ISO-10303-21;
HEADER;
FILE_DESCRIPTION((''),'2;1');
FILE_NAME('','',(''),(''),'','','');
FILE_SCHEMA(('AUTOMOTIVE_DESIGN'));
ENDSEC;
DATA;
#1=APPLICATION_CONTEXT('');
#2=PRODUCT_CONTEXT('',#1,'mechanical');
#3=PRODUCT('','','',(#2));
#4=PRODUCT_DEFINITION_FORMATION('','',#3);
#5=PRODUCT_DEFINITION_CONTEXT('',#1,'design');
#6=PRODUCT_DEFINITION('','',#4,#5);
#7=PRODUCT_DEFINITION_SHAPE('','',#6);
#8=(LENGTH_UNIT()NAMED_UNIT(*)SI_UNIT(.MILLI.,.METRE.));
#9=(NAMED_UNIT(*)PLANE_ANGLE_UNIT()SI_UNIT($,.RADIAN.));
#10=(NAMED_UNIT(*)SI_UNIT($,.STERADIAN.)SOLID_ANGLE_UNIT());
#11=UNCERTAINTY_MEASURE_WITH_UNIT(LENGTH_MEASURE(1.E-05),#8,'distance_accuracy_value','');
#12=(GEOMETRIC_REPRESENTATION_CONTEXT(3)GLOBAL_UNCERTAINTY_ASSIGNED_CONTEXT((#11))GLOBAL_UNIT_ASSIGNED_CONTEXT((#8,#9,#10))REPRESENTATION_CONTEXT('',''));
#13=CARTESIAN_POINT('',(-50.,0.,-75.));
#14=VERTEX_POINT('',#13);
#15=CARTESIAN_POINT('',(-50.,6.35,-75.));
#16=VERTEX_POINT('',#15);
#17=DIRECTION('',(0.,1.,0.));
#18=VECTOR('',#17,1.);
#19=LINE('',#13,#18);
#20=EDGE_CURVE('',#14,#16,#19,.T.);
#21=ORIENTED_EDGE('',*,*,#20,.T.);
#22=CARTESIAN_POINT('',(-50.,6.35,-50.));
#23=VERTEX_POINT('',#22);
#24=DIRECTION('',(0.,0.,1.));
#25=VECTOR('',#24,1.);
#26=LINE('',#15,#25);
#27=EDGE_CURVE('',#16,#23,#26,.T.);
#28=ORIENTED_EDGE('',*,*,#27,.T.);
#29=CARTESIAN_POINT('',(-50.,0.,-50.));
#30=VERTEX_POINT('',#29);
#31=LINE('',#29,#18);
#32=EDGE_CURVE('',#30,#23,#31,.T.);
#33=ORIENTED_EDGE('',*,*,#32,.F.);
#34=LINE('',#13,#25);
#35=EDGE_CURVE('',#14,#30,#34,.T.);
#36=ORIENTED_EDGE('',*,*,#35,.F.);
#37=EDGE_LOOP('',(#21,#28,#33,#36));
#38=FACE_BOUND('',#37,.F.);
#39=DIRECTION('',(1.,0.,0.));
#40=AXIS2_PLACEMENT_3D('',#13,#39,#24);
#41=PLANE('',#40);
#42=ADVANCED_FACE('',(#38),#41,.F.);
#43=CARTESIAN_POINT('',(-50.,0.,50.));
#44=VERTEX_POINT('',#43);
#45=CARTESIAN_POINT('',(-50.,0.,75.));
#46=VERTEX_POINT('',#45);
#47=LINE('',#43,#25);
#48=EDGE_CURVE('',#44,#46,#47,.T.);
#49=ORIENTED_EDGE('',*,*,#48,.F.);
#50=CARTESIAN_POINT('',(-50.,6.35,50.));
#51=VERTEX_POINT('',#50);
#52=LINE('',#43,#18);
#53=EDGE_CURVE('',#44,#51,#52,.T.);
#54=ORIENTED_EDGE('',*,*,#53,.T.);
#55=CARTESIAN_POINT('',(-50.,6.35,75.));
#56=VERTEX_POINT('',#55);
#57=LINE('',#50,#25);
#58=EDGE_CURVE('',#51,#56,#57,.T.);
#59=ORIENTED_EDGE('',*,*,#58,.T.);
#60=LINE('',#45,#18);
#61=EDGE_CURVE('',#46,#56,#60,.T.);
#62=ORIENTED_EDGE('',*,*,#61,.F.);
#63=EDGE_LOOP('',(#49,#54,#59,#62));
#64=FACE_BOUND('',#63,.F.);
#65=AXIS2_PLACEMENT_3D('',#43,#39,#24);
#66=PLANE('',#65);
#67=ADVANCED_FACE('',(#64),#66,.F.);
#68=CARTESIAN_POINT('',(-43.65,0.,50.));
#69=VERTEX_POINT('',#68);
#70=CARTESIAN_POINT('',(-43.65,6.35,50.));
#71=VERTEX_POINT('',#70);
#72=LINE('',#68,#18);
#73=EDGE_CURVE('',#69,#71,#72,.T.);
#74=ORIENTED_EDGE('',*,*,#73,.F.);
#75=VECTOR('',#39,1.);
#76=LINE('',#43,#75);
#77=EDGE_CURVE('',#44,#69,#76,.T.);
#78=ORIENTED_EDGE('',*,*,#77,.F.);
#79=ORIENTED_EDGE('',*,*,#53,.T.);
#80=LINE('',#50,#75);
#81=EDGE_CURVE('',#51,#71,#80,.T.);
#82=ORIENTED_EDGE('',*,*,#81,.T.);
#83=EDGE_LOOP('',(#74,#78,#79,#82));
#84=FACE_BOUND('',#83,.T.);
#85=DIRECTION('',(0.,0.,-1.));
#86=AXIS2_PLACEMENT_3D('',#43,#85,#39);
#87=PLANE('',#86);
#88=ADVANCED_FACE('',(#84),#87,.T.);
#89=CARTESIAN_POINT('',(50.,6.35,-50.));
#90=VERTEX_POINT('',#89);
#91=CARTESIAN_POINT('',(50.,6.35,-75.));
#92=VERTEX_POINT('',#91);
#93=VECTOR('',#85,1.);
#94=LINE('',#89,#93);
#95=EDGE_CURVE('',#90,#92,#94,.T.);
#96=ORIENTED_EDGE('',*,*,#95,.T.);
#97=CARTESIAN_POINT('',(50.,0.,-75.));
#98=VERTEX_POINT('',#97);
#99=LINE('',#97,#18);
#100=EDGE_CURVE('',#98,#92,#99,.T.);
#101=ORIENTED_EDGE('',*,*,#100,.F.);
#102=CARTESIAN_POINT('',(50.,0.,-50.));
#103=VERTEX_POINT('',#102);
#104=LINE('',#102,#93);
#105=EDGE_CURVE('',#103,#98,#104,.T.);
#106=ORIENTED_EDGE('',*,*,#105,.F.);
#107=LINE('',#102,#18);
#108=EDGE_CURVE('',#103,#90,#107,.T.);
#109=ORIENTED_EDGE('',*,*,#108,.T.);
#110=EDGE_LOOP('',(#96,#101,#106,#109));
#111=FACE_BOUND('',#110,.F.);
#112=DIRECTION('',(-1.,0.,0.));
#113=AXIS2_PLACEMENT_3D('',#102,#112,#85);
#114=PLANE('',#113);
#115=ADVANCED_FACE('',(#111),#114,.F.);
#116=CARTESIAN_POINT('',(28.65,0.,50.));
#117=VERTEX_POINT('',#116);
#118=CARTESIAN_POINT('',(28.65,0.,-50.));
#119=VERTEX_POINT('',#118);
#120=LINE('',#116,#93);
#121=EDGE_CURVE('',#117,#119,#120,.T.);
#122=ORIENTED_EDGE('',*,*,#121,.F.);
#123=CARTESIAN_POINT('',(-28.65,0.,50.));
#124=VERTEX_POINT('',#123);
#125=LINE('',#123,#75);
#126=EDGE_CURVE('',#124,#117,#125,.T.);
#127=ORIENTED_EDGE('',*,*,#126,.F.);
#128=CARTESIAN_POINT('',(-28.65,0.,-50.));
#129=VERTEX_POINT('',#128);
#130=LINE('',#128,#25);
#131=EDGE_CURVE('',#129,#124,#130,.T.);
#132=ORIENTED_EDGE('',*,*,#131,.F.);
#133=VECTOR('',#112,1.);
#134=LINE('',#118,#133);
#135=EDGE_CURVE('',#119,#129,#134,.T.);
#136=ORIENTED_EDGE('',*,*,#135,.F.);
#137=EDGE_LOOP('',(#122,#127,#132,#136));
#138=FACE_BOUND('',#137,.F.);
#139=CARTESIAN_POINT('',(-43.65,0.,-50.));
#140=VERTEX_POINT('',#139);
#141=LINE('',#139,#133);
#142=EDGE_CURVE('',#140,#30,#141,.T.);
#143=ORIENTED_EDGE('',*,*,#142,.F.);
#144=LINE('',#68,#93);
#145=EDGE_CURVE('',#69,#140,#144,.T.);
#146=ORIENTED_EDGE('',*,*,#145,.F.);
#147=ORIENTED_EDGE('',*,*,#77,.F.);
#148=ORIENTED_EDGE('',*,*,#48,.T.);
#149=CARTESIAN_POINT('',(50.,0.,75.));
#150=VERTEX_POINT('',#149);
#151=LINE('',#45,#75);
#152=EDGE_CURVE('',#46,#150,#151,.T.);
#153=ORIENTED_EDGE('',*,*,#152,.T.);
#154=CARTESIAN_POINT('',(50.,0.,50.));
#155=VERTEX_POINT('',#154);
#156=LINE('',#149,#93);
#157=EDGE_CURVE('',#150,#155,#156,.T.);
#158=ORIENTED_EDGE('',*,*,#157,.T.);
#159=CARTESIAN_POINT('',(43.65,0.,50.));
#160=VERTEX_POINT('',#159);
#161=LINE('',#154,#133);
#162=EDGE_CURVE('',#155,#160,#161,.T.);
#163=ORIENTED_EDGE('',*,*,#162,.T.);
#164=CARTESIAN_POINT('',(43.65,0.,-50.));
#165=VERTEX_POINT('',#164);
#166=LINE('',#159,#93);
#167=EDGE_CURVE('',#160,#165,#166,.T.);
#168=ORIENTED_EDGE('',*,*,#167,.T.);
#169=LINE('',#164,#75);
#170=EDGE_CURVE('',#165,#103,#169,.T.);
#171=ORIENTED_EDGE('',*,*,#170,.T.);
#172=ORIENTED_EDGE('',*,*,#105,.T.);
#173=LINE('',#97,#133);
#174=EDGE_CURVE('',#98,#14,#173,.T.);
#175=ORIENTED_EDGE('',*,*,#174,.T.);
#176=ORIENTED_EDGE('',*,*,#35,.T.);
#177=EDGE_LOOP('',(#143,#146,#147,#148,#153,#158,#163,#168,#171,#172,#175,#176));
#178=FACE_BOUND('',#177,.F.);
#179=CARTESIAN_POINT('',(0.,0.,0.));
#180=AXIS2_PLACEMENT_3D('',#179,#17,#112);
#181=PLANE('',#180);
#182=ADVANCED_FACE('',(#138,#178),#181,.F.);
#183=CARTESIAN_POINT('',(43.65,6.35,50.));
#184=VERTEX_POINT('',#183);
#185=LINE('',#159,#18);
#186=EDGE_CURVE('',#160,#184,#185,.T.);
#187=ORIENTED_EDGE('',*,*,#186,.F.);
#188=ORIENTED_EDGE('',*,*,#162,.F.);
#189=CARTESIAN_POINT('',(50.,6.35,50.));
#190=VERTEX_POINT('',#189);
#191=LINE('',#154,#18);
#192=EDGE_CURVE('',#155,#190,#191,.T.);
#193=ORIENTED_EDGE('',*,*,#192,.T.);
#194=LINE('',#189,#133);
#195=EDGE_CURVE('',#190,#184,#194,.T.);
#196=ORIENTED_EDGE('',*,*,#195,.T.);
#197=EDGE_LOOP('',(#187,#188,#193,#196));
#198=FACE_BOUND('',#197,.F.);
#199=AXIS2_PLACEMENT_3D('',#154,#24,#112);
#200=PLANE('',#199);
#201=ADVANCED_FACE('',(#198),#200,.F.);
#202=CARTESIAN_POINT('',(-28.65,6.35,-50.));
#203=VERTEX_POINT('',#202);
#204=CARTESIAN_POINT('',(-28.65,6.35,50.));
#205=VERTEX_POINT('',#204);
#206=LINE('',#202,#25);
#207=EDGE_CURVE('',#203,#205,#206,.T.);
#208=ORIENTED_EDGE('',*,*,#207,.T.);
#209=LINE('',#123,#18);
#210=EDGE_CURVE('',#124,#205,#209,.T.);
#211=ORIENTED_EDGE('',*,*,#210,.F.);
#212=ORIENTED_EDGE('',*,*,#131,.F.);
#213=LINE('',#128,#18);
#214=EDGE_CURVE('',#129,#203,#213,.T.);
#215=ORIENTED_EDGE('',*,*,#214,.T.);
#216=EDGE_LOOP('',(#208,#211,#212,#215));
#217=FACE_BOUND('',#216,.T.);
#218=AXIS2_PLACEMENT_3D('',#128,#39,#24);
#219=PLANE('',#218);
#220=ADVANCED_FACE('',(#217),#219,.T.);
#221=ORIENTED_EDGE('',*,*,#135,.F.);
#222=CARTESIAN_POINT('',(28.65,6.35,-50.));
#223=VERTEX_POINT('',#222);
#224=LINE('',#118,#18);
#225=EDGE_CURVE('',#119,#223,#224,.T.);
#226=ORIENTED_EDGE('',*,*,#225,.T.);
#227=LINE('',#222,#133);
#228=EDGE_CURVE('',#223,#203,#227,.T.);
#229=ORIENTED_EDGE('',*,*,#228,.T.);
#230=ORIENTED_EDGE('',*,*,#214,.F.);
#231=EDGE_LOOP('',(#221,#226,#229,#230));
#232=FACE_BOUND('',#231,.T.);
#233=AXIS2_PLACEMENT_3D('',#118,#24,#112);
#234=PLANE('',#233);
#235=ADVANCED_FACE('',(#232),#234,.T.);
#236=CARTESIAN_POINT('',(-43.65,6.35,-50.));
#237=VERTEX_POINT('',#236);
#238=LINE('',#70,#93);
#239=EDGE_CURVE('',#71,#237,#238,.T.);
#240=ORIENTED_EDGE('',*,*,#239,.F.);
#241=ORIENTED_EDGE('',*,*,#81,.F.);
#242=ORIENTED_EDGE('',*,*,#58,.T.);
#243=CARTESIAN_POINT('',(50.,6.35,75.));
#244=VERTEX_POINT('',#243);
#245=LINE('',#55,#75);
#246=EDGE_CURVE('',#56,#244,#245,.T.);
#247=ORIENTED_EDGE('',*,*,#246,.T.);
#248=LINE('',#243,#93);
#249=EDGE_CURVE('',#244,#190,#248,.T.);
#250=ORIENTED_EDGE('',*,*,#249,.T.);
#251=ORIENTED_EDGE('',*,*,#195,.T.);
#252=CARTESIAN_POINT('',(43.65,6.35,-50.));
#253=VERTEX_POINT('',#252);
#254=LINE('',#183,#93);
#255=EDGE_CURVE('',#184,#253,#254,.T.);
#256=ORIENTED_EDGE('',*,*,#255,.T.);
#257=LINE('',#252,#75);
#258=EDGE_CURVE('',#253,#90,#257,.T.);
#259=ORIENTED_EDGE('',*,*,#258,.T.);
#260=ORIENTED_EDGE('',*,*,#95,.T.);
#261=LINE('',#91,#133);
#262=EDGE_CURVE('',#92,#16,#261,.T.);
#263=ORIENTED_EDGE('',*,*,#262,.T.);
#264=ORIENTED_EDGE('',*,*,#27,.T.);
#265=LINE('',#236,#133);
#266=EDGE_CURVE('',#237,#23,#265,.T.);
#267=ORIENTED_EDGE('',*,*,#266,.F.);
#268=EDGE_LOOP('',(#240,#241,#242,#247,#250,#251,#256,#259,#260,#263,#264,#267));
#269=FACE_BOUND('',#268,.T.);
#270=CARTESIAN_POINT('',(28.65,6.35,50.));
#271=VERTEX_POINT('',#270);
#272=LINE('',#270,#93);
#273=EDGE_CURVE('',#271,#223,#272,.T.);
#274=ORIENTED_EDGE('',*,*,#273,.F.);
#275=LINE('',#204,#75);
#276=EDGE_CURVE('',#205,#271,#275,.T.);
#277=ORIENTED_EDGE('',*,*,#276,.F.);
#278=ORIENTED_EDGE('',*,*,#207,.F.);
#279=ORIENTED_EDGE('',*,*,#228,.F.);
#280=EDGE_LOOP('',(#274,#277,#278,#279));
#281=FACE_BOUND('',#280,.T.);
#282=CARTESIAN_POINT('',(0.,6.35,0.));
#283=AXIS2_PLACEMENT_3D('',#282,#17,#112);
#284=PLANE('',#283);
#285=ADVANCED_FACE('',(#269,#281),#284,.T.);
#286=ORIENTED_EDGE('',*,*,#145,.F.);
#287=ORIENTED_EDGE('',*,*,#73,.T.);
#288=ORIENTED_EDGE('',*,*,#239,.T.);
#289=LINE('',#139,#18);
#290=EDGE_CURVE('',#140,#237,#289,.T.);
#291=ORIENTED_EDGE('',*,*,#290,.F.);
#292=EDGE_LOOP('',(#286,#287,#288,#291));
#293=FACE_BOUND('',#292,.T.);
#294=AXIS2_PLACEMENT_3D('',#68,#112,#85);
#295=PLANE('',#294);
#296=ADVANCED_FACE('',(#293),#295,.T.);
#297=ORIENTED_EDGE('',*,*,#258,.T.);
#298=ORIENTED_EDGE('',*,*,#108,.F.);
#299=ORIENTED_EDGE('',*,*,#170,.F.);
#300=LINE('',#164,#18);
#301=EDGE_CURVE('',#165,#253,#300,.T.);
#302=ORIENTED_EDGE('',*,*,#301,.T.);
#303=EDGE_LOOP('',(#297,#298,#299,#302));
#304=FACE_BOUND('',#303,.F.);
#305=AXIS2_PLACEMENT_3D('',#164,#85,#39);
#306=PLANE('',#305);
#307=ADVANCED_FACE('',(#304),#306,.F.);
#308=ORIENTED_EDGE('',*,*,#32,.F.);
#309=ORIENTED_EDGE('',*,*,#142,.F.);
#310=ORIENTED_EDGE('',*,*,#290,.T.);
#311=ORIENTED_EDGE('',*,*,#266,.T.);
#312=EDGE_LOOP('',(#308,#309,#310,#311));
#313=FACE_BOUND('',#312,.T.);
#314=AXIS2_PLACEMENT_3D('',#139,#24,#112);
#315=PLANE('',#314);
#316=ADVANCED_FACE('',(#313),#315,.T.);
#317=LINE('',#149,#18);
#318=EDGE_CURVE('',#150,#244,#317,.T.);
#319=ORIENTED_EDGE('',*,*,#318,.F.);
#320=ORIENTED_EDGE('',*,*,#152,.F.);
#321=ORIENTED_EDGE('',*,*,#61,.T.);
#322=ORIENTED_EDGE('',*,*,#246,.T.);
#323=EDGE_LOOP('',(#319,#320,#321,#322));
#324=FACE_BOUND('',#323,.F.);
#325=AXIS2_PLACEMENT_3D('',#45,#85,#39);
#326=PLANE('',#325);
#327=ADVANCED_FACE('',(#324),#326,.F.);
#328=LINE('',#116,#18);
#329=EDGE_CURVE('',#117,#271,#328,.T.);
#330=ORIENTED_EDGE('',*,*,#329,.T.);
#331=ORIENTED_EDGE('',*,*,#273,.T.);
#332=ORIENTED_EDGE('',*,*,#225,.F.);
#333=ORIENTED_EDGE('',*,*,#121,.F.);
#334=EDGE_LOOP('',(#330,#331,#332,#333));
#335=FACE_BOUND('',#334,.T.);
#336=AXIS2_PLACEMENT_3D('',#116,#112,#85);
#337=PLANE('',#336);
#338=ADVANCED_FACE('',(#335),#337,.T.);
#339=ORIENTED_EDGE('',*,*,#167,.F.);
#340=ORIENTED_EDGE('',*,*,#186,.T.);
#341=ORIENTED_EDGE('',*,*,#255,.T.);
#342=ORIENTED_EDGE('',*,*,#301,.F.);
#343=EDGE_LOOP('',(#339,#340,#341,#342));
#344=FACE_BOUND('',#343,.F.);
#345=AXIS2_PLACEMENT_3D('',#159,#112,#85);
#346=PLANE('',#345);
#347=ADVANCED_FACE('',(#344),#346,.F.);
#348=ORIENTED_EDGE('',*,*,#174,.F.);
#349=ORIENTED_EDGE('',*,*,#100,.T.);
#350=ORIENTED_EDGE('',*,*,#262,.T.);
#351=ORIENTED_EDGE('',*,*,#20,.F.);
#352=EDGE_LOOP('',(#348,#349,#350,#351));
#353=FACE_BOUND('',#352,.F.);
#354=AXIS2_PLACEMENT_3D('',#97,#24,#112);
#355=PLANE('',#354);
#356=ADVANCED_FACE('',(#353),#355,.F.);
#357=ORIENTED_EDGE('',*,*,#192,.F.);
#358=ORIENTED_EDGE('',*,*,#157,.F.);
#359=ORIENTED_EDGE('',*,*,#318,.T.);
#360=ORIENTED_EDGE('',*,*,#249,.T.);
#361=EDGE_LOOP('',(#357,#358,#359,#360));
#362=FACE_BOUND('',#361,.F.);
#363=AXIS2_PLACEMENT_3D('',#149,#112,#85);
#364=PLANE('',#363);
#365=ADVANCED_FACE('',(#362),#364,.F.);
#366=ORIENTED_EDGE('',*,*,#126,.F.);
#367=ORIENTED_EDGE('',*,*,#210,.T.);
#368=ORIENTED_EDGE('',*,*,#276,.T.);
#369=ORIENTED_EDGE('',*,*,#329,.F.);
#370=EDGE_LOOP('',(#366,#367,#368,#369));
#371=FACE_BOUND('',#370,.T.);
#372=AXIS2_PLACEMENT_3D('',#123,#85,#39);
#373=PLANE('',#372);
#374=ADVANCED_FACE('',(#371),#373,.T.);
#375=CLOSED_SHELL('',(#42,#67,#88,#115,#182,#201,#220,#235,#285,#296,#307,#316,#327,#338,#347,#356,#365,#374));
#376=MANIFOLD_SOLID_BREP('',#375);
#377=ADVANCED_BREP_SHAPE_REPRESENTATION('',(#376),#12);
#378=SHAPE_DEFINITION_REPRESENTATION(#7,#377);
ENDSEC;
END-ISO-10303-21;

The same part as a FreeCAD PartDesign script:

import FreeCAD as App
import Part
import Sketcher
Q = App.Units.Quantity


def add_polygon(sketch, points):
    """Adds a closed chain of lines whose ends are joined by coincident constraints."""
    first, n = sketch.GeometryCount, len(points)
    for a, b in zip(points, points[1:] + points[:1]):
        sketch.addGeometry(Part.LineSegment(App.Vector(*a, 0), App.Vector(*b, 0)), False)
    for i in range(n):
        sketch.addConstraint(Sketcher.Constraint("Coincident", first + i, 2, first + (i + 1) % n, 1))

doc = App.newDocument("Part")
params = doc.addObject("Spreadsheet::Sheet", "Params")
for row, (alias, value) in enumerate([
    ("sketch1_width", "0.25 in"),
    ("sketch1_width2", "3.937 in"),
    ("pad1_length", "0.25 in"),
], start=1):
    params.set(f"A{row}", alias)
    params.set(f"B{row}", "=" + value)
    params.setAlias(f"B{row}", alias)

body = doc.addObject("PartDesign::Body", "Body")

# Sketch on XZ plane
sketch1 = doc.addObject("Sketcher::SketchObject", "Sketch")
body.addObject(sketch1)
sketch1.AttachmentSupport = (doc.XZ_Plane, [""])
sketch1.MapMode = "FlatFace"
add_polygon(sketch1, [(-50, 50), (-50, 75), (50, 75), (50, 50), (44, 50), (44, -50), (50, -50), (50, -75), (-50, -75), (-50, -50), (-44, -50), (-44, 50)])  # lines 0-11
add_polygon(sketch1, [(29, 50), (-29, 50), (-29, -50), (29, -50)])  # lines 12-15
sketch1.addConstraint([
    Sketcher.Constraint("Vertical", 0),
    Sketcher.Constraint("Horizontal", 1),
    Sketcher.Constraint("Vertical", 2),
    Sketcher.Constraint("Horizontal", 3),
    Sketcher.Constraint("Vertical", 4),
    Sketcher.Constraint("Horizontal", 5),
    Sketcher.Constraint("Vertical", 6),
    Sketcher.Constraint("Horizontal", 7),
    Sketcher.Constraint("Vertical", 8),
    Sketcher.Constraint("Horizontal", 9),
    Sketcher.Constraint("Vertical", 10),
    Sketcher.Constraint("Horizontal", 11),
    Sketcher.Constraint("Horizontal", 12),
    Sketcher.Constraint("Vertical", 13),
    Sketcher.Constraint("Horizontal", 14),
    Sketcher.Constraint("Vertical", 15),
    Sketcher.Constraint("Symmetric", 0, 2, 6, 2, -1, 1),
    Sketcher.Constraint("Symmetric", 2, 2, 8, 2, -1, 1),
    Sketcher.Constraint("Symmetric", 4, 2, 10, 2, -1, 1),
    Sketcher.Constraint("Symmetric", 12, 2, 14, 2, -1, 1),
    Sketcher.Constraint("Symmetric", 5, 2, 8, 2, -2),
    Sketcher.Constraint("Horizontal", 11, 2, 12, 2),
    Sketcher.Constraint("Equal", 7, 4),
    Sketcher.Constraint("DistanceX", 3, 2, 3, 1, Q("0.25 in")),
    Sketcher.Constraint("DistanceX", 1, 1, 1, 2, Q("3.937 in")),
    Sketcher.Constraint("DistanceY", 0, 1, 0, 2, 25.0),
    Sketcher.Constraint("DistanceX", 10, 2, 12, 2, 15.0),
])
sketch1.setExpression("Constraints[39]", "Params.sketch1_width")
sketch1.setExpression("Constraints[40]", "Params.sketch1_width2")
pad1 = doc.addObject("PartDesign::Pad", "Pad")
body.addObject(pad1)
pad1.Profile = sketch1
pad1.setExpression("Length", "Params.pad1_length")
pad1.Reversed = True

doc.recompute()
